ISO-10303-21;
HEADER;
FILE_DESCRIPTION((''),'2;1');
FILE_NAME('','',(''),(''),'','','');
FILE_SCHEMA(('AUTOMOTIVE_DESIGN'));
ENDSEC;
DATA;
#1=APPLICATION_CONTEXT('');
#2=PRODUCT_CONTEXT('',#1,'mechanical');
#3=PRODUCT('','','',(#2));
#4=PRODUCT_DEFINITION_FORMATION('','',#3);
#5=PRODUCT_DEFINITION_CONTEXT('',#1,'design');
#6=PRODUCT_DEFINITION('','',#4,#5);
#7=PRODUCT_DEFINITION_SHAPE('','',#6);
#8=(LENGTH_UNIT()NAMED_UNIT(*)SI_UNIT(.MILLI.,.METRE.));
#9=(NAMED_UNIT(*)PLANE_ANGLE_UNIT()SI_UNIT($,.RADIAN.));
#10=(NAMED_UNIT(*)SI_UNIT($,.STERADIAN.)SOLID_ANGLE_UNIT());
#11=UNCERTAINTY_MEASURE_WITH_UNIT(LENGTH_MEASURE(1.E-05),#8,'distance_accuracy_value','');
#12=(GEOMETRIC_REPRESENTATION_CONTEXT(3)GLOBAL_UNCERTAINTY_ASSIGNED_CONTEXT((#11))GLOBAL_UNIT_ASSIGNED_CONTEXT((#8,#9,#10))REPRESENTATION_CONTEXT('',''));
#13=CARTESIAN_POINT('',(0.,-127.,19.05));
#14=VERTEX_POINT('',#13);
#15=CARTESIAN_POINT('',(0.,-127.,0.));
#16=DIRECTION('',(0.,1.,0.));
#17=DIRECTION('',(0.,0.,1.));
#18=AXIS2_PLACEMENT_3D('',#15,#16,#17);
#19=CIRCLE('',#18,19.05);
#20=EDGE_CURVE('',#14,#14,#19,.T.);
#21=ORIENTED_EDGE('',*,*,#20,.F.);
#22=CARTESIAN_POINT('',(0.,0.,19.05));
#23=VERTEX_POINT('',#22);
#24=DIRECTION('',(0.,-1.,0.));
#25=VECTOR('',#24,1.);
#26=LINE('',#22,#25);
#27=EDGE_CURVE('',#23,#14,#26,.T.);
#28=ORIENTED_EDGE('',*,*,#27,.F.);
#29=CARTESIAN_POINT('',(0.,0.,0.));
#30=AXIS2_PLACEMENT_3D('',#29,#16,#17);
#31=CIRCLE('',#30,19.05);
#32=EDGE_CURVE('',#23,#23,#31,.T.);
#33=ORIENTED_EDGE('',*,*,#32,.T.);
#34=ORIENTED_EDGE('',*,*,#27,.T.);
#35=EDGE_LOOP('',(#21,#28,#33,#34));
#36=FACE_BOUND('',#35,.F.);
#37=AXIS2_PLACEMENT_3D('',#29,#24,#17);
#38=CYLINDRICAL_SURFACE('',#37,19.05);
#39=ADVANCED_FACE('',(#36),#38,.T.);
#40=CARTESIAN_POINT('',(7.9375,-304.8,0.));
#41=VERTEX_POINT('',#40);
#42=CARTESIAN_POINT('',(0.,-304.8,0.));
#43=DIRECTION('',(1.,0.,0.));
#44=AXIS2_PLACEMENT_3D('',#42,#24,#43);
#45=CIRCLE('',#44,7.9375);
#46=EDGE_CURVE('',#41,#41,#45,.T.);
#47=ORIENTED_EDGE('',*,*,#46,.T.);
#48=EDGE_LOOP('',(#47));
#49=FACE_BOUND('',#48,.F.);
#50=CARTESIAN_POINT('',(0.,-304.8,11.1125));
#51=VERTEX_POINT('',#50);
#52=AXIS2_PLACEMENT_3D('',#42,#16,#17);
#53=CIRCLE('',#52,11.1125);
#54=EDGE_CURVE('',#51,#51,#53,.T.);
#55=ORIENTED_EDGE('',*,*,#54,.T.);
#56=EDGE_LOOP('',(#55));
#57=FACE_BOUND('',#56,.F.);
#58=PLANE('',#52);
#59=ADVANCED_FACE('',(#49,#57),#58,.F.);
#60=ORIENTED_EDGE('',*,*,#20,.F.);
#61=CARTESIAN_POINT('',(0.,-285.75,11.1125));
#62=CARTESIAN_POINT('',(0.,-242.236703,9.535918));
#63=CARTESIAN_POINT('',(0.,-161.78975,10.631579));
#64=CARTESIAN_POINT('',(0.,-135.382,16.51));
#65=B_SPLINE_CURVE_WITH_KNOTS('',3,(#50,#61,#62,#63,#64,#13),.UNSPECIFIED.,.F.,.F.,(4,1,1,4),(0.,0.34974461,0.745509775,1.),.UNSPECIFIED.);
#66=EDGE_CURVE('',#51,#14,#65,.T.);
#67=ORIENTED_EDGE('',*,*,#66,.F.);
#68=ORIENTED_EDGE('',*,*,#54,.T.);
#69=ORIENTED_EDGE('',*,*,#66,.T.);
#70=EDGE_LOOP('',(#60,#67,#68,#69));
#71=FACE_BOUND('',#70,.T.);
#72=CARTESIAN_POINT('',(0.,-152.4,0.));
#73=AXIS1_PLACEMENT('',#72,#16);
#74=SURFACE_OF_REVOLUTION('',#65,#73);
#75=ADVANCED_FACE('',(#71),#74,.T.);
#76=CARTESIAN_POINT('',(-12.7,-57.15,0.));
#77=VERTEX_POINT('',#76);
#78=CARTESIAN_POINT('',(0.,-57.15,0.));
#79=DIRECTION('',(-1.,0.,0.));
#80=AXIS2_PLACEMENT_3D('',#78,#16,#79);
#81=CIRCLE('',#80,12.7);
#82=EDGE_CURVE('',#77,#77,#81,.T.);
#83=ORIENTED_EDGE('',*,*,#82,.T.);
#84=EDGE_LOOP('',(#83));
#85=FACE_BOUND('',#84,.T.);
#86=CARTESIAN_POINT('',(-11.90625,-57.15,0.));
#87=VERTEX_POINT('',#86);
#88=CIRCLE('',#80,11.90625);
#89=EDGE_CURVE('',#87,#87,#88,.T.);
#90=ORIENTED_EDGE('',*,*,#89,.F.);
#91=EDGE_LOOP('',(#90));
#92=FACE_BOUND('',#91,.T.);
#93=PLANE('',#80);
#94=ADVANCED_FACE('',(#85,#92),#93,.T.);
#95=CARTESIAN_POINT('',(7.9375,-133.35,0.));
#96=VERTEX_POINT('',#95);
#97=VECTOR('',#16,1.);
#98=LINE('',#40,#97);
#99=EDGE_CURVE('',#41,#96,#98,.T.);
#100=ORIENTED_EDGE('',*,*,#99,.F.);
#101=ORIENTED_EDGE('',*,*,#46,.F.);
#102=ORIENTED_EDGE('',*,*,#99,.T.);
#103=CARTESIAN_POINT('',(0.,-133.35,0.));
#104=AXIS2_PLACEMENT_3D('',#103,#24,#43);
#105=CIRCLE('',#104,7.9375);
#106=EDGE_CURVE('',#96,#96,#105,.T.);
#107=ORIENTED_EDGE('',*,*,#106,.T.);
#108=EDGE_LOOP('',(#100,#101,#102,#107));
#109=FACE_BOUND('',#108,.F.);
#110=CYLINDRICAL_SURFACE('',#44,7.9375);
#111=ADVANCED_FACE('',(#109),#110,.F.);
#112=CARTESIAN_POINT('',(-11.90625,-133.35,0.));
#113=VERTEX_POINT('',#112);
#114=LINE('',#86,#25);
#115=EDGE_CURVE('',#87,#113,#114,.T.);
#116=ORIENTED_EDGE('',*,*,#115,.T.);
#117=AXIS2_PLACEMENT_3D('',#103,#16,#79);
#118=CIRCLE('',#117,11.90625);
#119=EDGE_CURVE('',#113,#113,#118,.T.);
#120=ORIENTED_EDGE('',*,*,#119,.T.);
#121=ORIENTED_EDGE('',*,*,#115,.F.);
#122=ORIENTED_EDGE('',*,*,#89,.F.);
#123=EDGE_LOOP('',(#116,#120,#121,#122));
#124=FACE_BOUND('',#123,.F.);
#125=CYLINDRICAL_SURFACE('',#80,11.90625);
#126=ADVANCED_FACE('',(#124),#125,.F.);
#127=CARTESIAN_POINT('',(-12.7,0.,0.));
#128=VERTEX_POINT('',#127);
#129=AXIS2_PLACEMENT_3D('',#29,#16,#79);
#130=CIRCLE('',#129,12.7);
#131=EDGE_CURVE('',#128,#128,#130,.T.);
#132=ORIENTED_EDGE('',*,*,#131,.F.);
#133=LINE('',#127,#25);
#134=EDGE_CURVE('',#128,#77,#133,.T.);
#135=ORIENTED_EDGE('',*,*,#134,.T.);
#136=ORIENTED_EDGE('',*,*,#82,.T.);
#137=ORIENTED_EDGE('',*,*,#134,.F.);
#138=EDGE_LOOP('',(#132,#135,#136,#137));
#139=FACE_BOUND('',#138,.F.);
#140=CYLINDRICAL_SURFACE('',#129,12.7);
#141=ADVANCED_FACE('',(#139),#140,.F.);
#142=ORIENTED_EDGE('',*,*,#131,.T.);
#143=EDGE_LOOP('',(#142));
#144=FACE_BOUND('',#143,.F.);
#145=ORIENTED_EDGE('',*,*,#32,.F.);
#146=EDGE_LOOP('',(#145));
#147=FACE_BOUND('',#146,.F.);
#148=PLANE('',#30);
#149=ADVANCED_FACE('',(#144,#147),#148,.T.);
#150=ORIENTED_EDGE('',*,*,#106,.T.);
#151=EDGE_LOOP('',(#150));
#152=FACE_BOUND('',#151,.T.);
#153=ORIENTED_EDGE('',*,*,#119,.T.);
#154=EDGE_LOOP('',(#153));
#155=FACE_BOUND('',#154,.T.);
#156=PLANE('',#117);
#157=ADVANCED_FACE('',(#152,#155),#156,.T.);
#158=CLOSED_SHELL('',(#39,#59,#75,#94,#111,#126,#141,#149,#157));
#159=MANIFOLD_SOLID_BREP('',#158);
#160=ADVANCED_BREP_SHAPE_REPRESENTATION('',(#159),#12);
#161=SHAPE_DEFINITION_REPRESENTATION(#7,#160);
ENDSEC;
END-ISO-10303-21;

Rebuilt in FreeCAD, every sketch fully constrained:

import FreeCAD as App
import Part
import Sketcher

V = App.Vector
Q = App.Units.Quantity

doc = App.newDocument("Part")
body = doc.addObject("PartDesign::Body", "Body")

sketch1 = body.newObject("Sketcher::SketchObject", "Sketch")
sketch1.AttachmentSupport = (doc.getObject("YZ_Plane"), [""])
sketch1.MapMode = "FlatFace"
sketch1.addGeometry(Part.BSplineCurve([V(-304.8, 11.1125, 0), V(-285.75, 11.1125, 0), V(-242.236703, 9.535918, 0), V(-161.78975, 10.631579, 0), V(-135.382, 16.51, 0), V(-127, 19.05, 0)], [4, 1, 1, 4], [0, 0.34974461, 0.745509775, 1], False, 3, [1, 1, 1, 1, 1, 1], False), False)
sketch1.addGeometry(Part.LineSegment(V(-304.8, 11.1125, 0), V(-304.8, 0, 0)), False)
sketch1.addGeometry(Part.LineSegment(V(-304.8, 0, 0), V(0, 0, 0)), False)
sketch1.addGeometry(Part.LineSegment(V(0, 0, 0), V(0, 19.05, 0)), False)
sketch1.addGeometry(Part.LineSegment(V(0, 19.05, 0), V(-127, 19.05, 0)), False)
sketch1.addConstraint(Sketcher.Constraint("Block", 0))
sketch1.addConstraint(Sketcher.Constraint("Coincident", 0, 1, 1, 1))
sketch1.addConstraint(Sketcher.Constraint("Coincident", 1, 2, 2, 1))
sketch1.addConstraint(Sketcher.Constraint("Coincident", 2, 2, 3, 1))
sketch1.addConstraint(Sketcher.Constraint("Coincident", 3, 2, 4, 1))
sketch1.addConstraint(Sketcher.Constraint("Coincident", 4, 2, 0, 2))
sketch1.addConstraint(Sketcher.Constraint("Vertical", 1))
sketch1.addConstraint(Sketcher.Constraint("Horizontal", 2))
sketch1.addConstraint(Sketcher.Constraint("Vertical", 3))
sketch1.addConstraint(Sketcher.Constraint("Horizontal", 4))
sketch1.addConstraint(Sketcher.Constraint("Coincident", 2, 2, -1, 1))
revolution = body.newObject("PartDesign::Revolution", "Revolution")
revolution.Profile = sketch1
revolution.ReferenceAxis = (sketch1, ["H_Axis"])
revolution.Angle = 360

sketch2 = body.newObject("Sketcher::SketchObject", "Sketch001")
sketch2.AttachmentSupport = (doc.getObject("XZ_Plane"), [""])
sketch2.MapMode = "FlatFace"
sketch2.AttachmentOffset = App.Placement(V(0, 0, 12 * 25.4), App.Rotation())
sketch2.addGeometry(Part.Circle(V(0, 0, 0), V(0, 0, 1), 7.9375), False)
sketch2.addConstraint(Sketcher.Constraint("Coincident", 0, 3, -1, 1))
sketch2.addConstraint(Sketcher.Constraint("Diameter", 0, Q("0.625 in")))
pocket1 = body.newObject("PartDesign::Pocket", "Pocket")
pocket1.Profile = sketch2
pocket1.Type = "ThroughAll"

sketch3 = body.newObject("Sketcher::SketchObject", "Sketch002")
sketch3.AttachmentSupport = (doc.getObject("XZ_Plane"), [""])
sketch3.MapMode = "FlatFace"
sketch3.addGeometry(Part.Circle(V(0, 0, 0), V(0, 0, 1), 12.7), False)
sketch3.addConstraint(Sketcher.Constraint("Coincident", 0, 3, -1, 1))
sketch3.addConstraint(Sketcher.Constraint("Diameter", 0, Q("1 in")))
pocket2 = body.newObject("PartDesign::Pocket", "Pocket001")
pocket2.Profile = sketch3
pocket2.Length = Q("2.25 in")
pocket2.Reversed = True

sketch4 = body.newObject("Sketcher::SketchObject", "Sketch003")
sketch4.AttachmentSupport = (doc.getObject("XZ_Plane"), [""])
sketch4.MapMode = "FlatFace"
sketch4.AttachmentOffset = App.Placement(V(0, 0, 2.25 * 25.4), App.Rotation())
sketch4.addGeometry(Part.Circle(V(0, 0, 0), V(0, 0, 1), 11.90625), False)
sketch4.addConstraint(Sketcher.Constraint("Coincident", 0, 3, -1, 1))
sketch4.addConstraint(Sketcher.Constraint("Diameter", 0, Q("0.9375 in")))
pocket3 = body.newObject("PartDesign::Pocket", "Pocket002")
pocket3.Profile = sketch4
pocket3.Length = Q("3 in")
pocket3.Reversed = True

doc.recompute()
